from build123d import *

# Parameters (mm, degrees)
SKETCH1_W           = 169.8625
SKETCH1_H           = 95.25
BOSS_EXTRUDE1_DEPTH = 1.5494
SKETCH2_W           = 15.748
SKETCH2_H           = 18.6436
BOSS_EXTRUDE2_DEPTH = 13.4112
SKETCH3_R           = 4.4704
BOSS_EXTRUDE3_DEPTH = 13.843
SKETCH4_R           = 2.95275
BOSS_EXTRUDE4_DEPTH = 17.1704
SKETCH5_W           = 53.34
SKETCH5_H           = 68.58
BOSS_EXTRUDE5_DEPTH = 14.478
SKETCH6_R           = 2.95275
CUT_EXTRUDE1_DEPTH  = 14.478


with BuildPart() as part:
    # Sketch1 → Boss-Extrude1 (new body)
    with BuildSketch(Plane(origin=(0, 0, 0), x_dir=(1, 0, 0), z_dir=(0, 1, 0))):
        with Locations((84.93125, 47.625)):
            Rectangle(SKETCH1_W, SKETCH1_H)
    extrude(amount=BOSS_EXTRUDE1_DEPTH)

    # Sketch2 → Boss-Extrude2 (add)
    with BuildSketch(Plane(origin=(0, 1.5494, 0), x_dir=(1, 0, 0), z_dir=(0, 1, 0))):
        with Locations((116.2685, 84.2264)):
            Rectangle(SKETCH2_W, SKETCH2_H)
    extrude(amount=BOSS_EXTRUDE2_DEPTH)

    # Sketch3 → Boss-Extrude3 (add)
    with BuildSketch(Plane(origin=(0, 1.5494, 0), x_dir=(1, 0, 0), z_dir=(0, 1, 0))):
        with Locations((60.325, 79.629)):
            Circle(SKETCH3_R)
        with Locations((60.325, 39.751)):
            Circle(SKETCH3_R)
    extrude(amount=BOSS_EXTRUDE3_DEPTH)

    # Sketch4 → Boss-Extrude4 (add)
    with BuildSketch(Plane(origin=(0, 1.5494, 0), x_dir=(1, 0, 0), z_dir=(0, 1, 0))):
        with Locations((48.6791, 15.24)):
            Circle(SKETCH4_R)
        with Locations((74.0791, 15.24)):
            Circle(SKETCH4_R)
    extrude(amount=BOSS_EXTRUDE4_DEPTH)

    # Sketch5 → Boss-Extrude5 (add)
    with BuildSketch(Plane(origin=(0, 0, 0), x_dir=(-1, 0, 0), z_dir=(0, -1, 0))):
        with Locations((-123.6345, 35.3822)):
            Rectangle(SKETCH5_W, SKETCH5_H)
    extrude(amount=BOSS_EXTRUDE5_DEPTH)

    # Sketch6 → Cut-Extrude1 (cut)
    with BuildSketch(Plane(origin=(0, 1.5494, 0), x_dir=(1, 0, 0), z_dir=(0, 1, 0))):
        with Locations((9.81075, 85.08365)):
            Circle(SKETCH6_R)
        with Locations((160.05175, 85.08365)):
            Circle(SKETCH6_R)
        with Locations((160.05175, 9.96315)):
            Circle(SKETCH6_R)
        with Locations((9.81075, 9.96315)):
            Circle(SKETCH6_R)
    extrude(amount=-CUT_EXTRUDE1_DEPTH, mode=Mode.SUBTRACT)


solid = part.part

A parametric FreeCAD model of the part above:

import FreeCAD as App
import Part
import Sketcher

V = App.Vector
Q = App.Units.Quantity


def add_polygon(sketch, points):
    """Adds a closed chain of lines whose ends are joined by coincident constraints."""
    first, n = sketch.GeometryCount, len(points)
    for a, b in zip(points, points[1:] + points[:1]):
        sketch.addGeometry(Part.LineSegment(App.Vector(*a, 0), App.Vector(*b, 0)), False)
    for i in range(n):
        sketch.addConstraint(Sketcher.Constraint("Coincident", first + i, 2, first + (i + 1) % n, 1))

doc = App.newDocument("Part")
params = doc.addObject("Spreadsheet::Sheet", "Params")
for row, (alias, value) in enumerate([
    ("sketch1_height", "3.75 in"),
    ("sketch1_width", "6.6875 in"),
    ("pad1_length", "0.061 in"),
    ("sketch2_width", "0.62 in"),
    ("sketch2_height", "0.734 in"),
    ("pad2_length", "0.528 in"),
    ("sketch3_diameter", "0.352 in"),
    ("pad3_length", "0.545 in"),
    ("pad4_length", "0.676 in"),
    ("sketch5_width", "2.1 in"),
    ("sketch5_height", "2.7 in"),
    ("pad5_length", "0.57 in"),
    ("pocket1_length", "0.57 in"),
], start=1):
    params.set(f"A{row}", alias)
    params.set(f"B{row}", "=" + value)
    params.setAlias(f"B{row}", alias)

body = doc.addObject("PartDesign::Body", "Body")

sketch1 = body.newObject("Sketcher::SketchObject", "Sketch")
sketch1.AttachmentSupport = (doc.getObject("XZ_Plane"), [""])
sketch1.MapMode = "FlatFace"
add_polygon(sketch1, [(0, -95.25), (0, 0), (169.8625, 0), (169.8625, -95.25)])
sketch1.addConstraint([
    Sketcher.Constraint("Vertical", 0),
    Sketcher.Constraint("Horizontal", 1),
    Sketcher.Constraint("Vertical", 2),
    Sketcher.Constraint("Horizontal", 3),
    Sketcher.Constraint("Coincident", 0, 2, -1, 1),
    Sketcher.Constraint("DistanceY", 0, 1, 0, 2, Q("3.75 in")),
    Sketcher.Constraint("DistanceX", 1, 1, 1, 2, Q("6.6875 in")),
])
sketch1.setExpression("Constraints[9]", "Params.sketch1_height")
sketch1.setExpression("Constraints[10]", "Params.sketch1_width")
pad1 = body.newObject("PartDesign::Pad", "Pad")
pad1.Profile = sketch1
pad1.setExpression("Length", "Params.pad1_length")
pad1.Reversed = True

sketch2 = body.newObject("Sketcher::SketchObject", "Sketch001")
sketch2.AttachmentSupport = (doc.getObject("XZ_Plane"), [""])
sketch2.MapMode = "FlatFace"
sketch2.AttachmentOffset = App.Placement(V(0, 0, -0.061 * 25.4), App.Rotation())
add_polygon(sketch2, [(108.3945, -93.5482), (108.3945, -74.9046), (124.1425, -74.9046), (124.1425, -93.5482)])
sketch2.addConstraint([
    Sketcher.Constraint("Vertical", 0),
    Sketcher.Constraint("Horizontal", 1),
    Sketcher.Constraint("Vertical", 2),
    Sketcher.Constraint("Horizontal", 3),
    Sketcher.Constraint("DistanceX", 1, 1, 1, 2, Q("0.62 in")),
    Sketcher.Constraint("DistanceY", 0, 1, 0, 2, Q("0.734 in")),
    Sketcher.Constraint("DistanceY", 0, 2, -1, 1, Q("2.949 in")),
    Sketcher.Constraint("DistanceX", -1, 1, 0, 2, Q("4.2675 in")),
])
sketch2.setExpression("Constraints[8]", "Params.sketch2_width")
sketch2.setExpression("Constraints[9]", "Params.sketch2_height")
pad2 = body.newObject("PartDesign::Pad", "Pad001")
pad2.Profile = sketch2
pad2.setExpression("Length", "Params.pad2_length")
pad2.Reversed = True

sketch3 = body.newObject("Sketcher::SketchObject", "Sketch002")
sketch3.AttachmentSupport = (doc.getObject("XZ_Plane"), [""])
sketch3.MapMode = "FlatFace"
sketch3.AttachmentOffset = App.Placement(V(0, 0, -0.061 * 25.4), App.Rotation())
sketch3.addGeometry([
    Part.Circle(V(60.325, -79.629, 0), V(0, 0, 1), 4.4704),
    Part.Circle(V(60.325, -39.751, 0), V(0, 0, 1), 4.4704),
], False)
sketch3.addConstraint([
    Sketcher.Constraint("Equal", 0, 1),
    Sketcher.Constraint("Vertical", 0, 3, 1, 3),
    Sketcher.Constraint("Diameter", 0, Q("0.352 in")),
    Sketcher.Constraint("DistanceY", 0, 3, 1, 3, Q("1.57 in")),
    Sketcher.Constraint("DistanceX", -1, 1, 0, 3, Q("2.375 in")),
    Sketcher.Constraint("DistanceY", 0, 3, -1, 1, Q("3.135 in")),
])
sketch3.setExpression("Constraints[2]", "Params.sketch3_diameter")
pad3 = body.newObject("PartDesign::Pad", "Pad002")
pad3.Profile = sketch3
pad3.setExpression("Length", "Params.pad3_length")
pad3.Reversed = True

sketch4 = body.newObject("Sketcher::SketchObject", "Sketch003")
sketch4.AttachmentSupport = (doc.getObject("XZ_Plane"), [""])
sketch4.MapMode = "FlatFace"
sketch4.AttachmentOffset = App.Placement(V(0, 0, -0.061 * 25.4), App.Rotation())
sketch4.addGeometry([
    Part.Circle(V(48.6791, -15.24, 0), V(0, 0, 1), 2.95275),
    Part.Circle(V(74.0791, -15.24, 0), V(0, 0, 1), 2.95275),
], False)
sketch4.addConstraint([
    Sketcher.Constraint("Equal", 0, 1),
    Sketcher.Constraint("Horizontal", 0, 3, 1, 3),
    Sketcher.Constraint("DistanceX", 0, 3, 1, 3, Q("1 in")),
    Sketcher.Constraint("Diameter", 0, Q("0.2325 in")),
    Sketcher.Constraint("DistanceY", 0, 3, -1, 1, Q("0.6 in")),
    Sketcher.Constraint("DistanceX", -1, 1, 0, 3, Q("1.9165 in")),
])
pad4 = body.newObject("PartDesign::Pad", "Pad003")
pad4.Profile = sketch4
pad4.setExpression("Length", "Params.pad4_length")
pad4.Reversed = True

sketch5 = body.newObject("Sketcher::SketchObject", "Sketch004")
sketch5.AttachmentSupport = (doc.getObject("XZ_Plane"), [""])
sketch5.MapMode = "FlatFace"
add_polygon(sketch5, [(150.3045, -69.6722), (150.3045, -1.0922), (96.9645, -1.0922), (96.9645, -69.6722)])
sketch5.addConstraint([
    Sketcher.Constraint("Vertical", 0),
    Sketcher.Constraint("Horizontal", 1),
    Sketcher.Constraint("Vertical", 2),
    Sketcher.Constraint("Horizontal", 3),
    Sketcher.Constraint("DistanceX", 1, 2, 1, 1, Q("2.1 in")),
    Sketcher.Constraint("DistanceY", 0, 1, 0, 2, Q("2.7 in")),
    Sketcher.Constraint("DistanceY", 0, 2, -1, 1, Q("0.043 in")),
    Sketcher.Constraint("DistanceX", -1, 1, 0, 2, Q("5.9175 in")),
])
sketch5.setExpression("Constraints[8]", "Params.sketch5_width")
sketch5.setExpression("Constraints[9]", "Params.sketch5_height")
pad5 = body.newObject("PartDesign::Pad", "Pad004")
pad5.Profile = sketch5
pad5.setExpression("Length", "Params.pad5_length")

sketch6 = body.newObject("Sketcher::SketchObject", "Sketch005")
sketch6.AttachmentSupport = (doc.getObject("XZ_Plane"), [""])
sketch6.MapMode = "FlatFace"
sketch6.AttachmentOffset = App.Placement(V(0, 0, -0.061 * 25.4), App.Rotation())
sketch6.addGeometry([
    Part.Circle(V(9.81075, -85.08365, 0), V(0, 0, 1), 2.95275),
    Part.Circle(V(160.05175, -85.08365, 0), V(0, 0, 1), 2.95275),
    Part.Circle(V(160.05175, -9.96315, 0), V(0, 0, 1), 2.95275),
    Part.Circle(V(9.81075, -9.96315, 0), V(0, 0, 1), 2.95275),
], False)
sketch6.addConstraint([
    Sketcher.Constraint("Equal", 0, 1),
    Sketcher.Constraint("Equal", 1, 2),
    Sketcher.Constraint("Equal", 2, 3),
    Sketcher.Constraint("Horizontal", 0, 3, 1, 3),
    Sketcher.Constraint("Horizontal", 2, 3, 3, 3),
    Sketcher.Constraint("Vertical", 1, 3, 2, 3),
    Sketcher.Constraint("Vertical", 0, 3, 3, 3),
    Sketcher.Constraint("Diameter", 0, Q("0.2325 in")),
    Sketcher.Constraint("DistanceX", 0, 3, 1, 3, Q("5.915 in")),
    Sketcher.Constraint("DistanceY", 1, 3, 2, 3, Q("2.9575 in")),
    Sketcher.Constraint("DistanceX", -1, 1, 0, 3, 9.81075),
    Sketcher.Constraint("DistanceY", 0, 3, -1, 1, 85.08365),
])
pocket1 = body.newObject("PartDesign::Pocket", "Pocket")
pocket1.Profile = sketch6
pocket1.setExpression("Length", "Params.pocket1_length")
pocket1.Reversed = True

doc.recompute()
